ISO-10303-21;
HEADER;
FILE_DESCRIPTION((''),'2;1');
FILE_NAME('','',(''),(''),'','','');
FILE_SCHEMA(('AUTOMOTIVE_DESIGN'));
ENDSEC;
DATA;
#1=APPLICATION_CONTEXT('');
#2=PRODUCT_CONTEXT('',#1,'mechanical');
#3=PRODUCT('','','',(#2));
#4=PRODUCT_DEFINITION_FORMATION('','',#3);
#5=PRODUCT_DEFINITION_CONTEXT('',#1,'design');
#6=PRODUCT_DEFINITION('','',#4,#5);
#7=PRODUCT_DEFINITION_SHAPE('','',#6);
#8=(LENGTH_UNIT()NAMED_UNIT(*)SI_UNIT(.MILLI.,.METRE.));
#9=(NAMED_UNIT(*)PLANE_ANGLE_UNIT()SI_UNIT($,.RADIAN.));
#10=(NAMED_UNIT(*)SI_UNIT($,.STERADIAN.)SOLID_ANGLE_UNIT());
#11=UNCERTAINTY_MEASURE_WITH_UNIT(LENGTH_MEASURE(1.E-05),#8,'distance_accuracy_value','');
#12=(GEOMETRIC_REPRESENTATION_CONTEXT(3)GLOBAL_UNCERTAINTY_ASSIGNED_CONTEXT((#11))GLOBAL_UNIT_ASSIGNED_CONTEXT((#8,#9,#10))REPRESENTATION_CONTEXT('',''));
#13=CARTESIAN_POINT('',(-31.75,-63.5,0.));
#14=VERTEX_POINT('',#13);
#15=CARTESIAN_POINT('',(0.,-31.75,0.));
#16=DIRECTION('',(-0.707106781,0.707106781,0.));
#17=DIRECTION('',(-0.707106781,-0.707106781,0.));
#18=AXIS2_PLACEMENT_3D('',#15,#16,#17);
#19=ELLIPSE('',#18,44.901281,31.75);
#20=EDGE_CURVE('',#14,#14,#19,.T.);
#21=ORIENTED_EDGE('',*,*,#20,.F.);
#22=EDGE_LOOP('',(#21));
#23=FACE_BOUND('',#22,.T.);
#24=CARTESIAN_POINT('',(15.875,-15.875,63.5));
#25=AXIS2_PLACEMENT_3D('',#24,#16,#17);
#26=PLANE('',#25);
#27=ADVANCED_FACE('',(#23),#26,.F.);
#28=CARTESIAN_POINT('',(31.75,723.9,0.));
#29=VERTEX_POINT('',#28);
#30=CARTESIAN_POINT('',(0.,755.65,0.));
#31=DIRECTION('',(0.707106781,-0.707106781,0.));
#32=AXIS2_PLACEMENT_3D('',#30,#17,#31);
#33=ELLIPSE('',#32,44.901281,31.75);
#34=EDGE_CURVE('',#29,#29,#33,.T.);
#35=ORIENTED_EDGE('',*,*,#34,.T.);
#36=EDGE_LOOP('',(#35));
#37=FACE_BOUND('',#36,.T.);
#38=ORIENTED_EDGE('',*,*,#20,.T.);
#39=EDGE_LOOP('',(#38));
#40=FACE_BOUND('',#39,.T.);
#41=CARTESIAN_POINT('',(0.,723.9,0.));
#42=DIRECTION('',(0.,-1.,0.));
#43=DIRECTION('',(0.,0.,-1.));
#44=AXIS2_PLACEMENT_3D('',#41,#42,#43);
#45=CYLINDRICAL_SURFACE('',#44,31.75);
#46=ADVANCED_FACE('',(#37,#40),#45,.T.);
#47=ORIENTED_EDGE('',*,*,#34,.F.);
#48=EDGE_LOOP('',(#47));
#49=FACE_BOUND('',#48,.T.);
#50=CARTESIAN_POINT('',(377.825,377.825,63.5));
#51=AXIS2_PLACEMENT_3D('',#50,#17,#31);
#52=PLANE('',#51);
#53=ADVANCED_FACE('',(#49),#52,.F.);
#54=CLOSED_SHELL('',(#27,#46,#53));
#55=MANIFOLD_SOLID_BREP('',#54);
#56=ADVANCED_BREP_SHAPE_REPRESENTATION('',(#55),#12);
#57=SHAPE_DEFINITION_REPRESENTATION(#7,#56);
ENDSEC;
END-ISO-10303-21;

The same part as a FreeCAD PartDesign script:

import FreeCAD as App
import Part
import Sketcher
from FreeCAD import Vector
Q = App.Units.Quantity

doc = App.newDocument("Part")
body = doc.addObject("PartDesign::Body", "Body")

# Sketch on XZ plane
sketch1 = body.newObject("Sketcher::SketchObject", "Sketch")
sketch1.AttachmentSupport = (doc.getObject("XZ_Plane"), [""])
sketch1.MapMode = "FlatFace"
sketch1.addGeometry(Part.Circle(Vector(0, 0, 0), Vector(0, 0, 1), 32), False)
sketch1.addConstraint(Sketcher.Constraint("Coincident", 0, 3, -1, 1))
sketch1.addConstraint(Sketcher.Constraint("Diameter", 0, Q("2.5 in")))
pad1 = body.newObject("PartDesign::Pad", "Pad")
pad1.Profile = sketch1
pad1.Length = Q("28.5 in")
pad1.Reversed = True

# Sketch on XZ plane
sketch2 = body.newObject("Sketcher::SketchObject", "Sketch001")
sketch2.AttachmentSupport = (doc.getObject("XZ_Plane"), [""])
sketch2.MapMode = "FlatFace"
sketch2.AttachmentOffset = App.Placement(Vector(0, 0, -28.5 * 25.4), App.Rotation())
sketch2.addGeometry(Part.Circle(Vector(0, 0, 0), Vector(0, 0, 1), 32), False)
sketch2.addConstraint(Sketcher.Constraint("Coincident", 0, 3, -1, 1))
sketch2.addConstraint(Sketcher.Constraint("Diameter", 0, Q("2.5 in")))
pad2 = body.newObject("PartDesign::Pad", "Pad001")
pad2.Profile = sketch2
pad2.Length = Q("2.5 in")
pad2.Reversed = True

# Sketch on XZ plane
sketch3 = body.newObject("Sketcher::SketchObject", "Sketch002")
sketch3.AttachmentSupport = (doc.getObject("XZ_Plane"), [""])
sketch3.MapMode = "FlatFace"
sketch3.addGeometry(Part.Circle(Vector(0, 0, 0), Vector(0, 0, 1), 32), False)
sketch3.addConstraint(Sketcher.Constraint("Coincident", 0, 3, -1, 1))
sketch3.addConstraint(Sketcher.Constraint("Diameter", 0, Q("2.5 in")))
pad3 = body.newObject("PartDesign::Pad", "Pad002")
pad3.Profile = sketch3
pad3.Length = Q("2.5 in")

# Sketch on XY plane
sketch4 = body.newObject("Sketcher::SketchObject", "Sketch003")
sketch4.AttachmentSupport = (doc.getObject("XY_Plane"), [""])
sketch4.MapMode = "FlatFace"
sketch4.addGeometry(Part.LineSegment(Vector(-32, -64, 0), Vector(32, -64, 0)), False)
sketch4.addGeometry(Part.LineSegment(Vector(32, -64, 0), Vector(32, 0, 0)), False)
sketch4.addGeometry(Part.LineSegment(Vector(32, 0, 0), Vector(-32, -64, 0)), False)
sketch4.addGeometry(Part.LineSegment(Vector(-32, 787, 0), Vector(32, 724, 0)), False)
sketch4.addGeometry(Part.LineSegment(Vector(32, 724, 0), Vector(32, 787, 0)), False)
sketch4.addGeometry(Part.LineSegment(Vector(32, 787, 0), Vector(-32, 787, 0)), False)
sketch4.addConstraint(Sketcher.Constraint("Coincident", 0, 2, 1, 1))
sketch4.addConstraint(Sketcher.Constraint("Coincident", 1, 2, 2, 1))
sketch4.addConstraint(Sketcher.Constraint("Coincident", 2, 2, 0, 1))
sketch4.addConstraint(Sketcher.Constraint("Coincident", 3, 2, 4, 1))
sketch4.addConstraint(Sketcher.Constraint("Coincident", 4, 2, 5, 1))
sketch4.addConstraint(Sketcher.Constraint("Coincident", 5, 2, 3, 1))
sketch4.addConstraint(Sketcher.Constraint("Horizontal", 0))
sketch4.addConstraint(Sketcher.Constraint("Vertical", 1))
sketch4.addConstraint(Sketcher.Constraint("Vertical", 4))
sketch4.addConstraint(Sketcher.Constraint("Horizontal", 5))
sketch4.addConstraint(Sketcher.Constraint("PointOnObject", 1, 2, -1))
sketch4.addConstraint(Sketcher.Constraint("Perpendicular", 2, 3))
sketch4.addConstraint(Sketcher.Constraint("Vertical", 1, 2, 3, 2))
sketch4.addConstraint(Sketcher.Constraint("Vertical", 2, 2, 5, 2))
sketch4.addConstraint(Sketcher.Constraint("Equal", 5, 1))
sketch4.addConstraint(Sketcher.Constraint("DistanceX", 0, 1, 0, 2, Q("2.5 in")))
sketch4.addConstraint(Sketcher.Constraint("DistanceY", -1, 1, 4, 2, Q("31 in")))
sketch4.addConstraint(Sketcher.Constraint("DistanceX", -1, 1, 0, 2, Q("1.25 in")))
pocket1 = body.newObject("PartDesign::Pocket", "Pocket")
pocket1.Profile = sketch4
pocket1.Type = "ThroughAll"
pocket1.Midplane = True

doc.recompute()
